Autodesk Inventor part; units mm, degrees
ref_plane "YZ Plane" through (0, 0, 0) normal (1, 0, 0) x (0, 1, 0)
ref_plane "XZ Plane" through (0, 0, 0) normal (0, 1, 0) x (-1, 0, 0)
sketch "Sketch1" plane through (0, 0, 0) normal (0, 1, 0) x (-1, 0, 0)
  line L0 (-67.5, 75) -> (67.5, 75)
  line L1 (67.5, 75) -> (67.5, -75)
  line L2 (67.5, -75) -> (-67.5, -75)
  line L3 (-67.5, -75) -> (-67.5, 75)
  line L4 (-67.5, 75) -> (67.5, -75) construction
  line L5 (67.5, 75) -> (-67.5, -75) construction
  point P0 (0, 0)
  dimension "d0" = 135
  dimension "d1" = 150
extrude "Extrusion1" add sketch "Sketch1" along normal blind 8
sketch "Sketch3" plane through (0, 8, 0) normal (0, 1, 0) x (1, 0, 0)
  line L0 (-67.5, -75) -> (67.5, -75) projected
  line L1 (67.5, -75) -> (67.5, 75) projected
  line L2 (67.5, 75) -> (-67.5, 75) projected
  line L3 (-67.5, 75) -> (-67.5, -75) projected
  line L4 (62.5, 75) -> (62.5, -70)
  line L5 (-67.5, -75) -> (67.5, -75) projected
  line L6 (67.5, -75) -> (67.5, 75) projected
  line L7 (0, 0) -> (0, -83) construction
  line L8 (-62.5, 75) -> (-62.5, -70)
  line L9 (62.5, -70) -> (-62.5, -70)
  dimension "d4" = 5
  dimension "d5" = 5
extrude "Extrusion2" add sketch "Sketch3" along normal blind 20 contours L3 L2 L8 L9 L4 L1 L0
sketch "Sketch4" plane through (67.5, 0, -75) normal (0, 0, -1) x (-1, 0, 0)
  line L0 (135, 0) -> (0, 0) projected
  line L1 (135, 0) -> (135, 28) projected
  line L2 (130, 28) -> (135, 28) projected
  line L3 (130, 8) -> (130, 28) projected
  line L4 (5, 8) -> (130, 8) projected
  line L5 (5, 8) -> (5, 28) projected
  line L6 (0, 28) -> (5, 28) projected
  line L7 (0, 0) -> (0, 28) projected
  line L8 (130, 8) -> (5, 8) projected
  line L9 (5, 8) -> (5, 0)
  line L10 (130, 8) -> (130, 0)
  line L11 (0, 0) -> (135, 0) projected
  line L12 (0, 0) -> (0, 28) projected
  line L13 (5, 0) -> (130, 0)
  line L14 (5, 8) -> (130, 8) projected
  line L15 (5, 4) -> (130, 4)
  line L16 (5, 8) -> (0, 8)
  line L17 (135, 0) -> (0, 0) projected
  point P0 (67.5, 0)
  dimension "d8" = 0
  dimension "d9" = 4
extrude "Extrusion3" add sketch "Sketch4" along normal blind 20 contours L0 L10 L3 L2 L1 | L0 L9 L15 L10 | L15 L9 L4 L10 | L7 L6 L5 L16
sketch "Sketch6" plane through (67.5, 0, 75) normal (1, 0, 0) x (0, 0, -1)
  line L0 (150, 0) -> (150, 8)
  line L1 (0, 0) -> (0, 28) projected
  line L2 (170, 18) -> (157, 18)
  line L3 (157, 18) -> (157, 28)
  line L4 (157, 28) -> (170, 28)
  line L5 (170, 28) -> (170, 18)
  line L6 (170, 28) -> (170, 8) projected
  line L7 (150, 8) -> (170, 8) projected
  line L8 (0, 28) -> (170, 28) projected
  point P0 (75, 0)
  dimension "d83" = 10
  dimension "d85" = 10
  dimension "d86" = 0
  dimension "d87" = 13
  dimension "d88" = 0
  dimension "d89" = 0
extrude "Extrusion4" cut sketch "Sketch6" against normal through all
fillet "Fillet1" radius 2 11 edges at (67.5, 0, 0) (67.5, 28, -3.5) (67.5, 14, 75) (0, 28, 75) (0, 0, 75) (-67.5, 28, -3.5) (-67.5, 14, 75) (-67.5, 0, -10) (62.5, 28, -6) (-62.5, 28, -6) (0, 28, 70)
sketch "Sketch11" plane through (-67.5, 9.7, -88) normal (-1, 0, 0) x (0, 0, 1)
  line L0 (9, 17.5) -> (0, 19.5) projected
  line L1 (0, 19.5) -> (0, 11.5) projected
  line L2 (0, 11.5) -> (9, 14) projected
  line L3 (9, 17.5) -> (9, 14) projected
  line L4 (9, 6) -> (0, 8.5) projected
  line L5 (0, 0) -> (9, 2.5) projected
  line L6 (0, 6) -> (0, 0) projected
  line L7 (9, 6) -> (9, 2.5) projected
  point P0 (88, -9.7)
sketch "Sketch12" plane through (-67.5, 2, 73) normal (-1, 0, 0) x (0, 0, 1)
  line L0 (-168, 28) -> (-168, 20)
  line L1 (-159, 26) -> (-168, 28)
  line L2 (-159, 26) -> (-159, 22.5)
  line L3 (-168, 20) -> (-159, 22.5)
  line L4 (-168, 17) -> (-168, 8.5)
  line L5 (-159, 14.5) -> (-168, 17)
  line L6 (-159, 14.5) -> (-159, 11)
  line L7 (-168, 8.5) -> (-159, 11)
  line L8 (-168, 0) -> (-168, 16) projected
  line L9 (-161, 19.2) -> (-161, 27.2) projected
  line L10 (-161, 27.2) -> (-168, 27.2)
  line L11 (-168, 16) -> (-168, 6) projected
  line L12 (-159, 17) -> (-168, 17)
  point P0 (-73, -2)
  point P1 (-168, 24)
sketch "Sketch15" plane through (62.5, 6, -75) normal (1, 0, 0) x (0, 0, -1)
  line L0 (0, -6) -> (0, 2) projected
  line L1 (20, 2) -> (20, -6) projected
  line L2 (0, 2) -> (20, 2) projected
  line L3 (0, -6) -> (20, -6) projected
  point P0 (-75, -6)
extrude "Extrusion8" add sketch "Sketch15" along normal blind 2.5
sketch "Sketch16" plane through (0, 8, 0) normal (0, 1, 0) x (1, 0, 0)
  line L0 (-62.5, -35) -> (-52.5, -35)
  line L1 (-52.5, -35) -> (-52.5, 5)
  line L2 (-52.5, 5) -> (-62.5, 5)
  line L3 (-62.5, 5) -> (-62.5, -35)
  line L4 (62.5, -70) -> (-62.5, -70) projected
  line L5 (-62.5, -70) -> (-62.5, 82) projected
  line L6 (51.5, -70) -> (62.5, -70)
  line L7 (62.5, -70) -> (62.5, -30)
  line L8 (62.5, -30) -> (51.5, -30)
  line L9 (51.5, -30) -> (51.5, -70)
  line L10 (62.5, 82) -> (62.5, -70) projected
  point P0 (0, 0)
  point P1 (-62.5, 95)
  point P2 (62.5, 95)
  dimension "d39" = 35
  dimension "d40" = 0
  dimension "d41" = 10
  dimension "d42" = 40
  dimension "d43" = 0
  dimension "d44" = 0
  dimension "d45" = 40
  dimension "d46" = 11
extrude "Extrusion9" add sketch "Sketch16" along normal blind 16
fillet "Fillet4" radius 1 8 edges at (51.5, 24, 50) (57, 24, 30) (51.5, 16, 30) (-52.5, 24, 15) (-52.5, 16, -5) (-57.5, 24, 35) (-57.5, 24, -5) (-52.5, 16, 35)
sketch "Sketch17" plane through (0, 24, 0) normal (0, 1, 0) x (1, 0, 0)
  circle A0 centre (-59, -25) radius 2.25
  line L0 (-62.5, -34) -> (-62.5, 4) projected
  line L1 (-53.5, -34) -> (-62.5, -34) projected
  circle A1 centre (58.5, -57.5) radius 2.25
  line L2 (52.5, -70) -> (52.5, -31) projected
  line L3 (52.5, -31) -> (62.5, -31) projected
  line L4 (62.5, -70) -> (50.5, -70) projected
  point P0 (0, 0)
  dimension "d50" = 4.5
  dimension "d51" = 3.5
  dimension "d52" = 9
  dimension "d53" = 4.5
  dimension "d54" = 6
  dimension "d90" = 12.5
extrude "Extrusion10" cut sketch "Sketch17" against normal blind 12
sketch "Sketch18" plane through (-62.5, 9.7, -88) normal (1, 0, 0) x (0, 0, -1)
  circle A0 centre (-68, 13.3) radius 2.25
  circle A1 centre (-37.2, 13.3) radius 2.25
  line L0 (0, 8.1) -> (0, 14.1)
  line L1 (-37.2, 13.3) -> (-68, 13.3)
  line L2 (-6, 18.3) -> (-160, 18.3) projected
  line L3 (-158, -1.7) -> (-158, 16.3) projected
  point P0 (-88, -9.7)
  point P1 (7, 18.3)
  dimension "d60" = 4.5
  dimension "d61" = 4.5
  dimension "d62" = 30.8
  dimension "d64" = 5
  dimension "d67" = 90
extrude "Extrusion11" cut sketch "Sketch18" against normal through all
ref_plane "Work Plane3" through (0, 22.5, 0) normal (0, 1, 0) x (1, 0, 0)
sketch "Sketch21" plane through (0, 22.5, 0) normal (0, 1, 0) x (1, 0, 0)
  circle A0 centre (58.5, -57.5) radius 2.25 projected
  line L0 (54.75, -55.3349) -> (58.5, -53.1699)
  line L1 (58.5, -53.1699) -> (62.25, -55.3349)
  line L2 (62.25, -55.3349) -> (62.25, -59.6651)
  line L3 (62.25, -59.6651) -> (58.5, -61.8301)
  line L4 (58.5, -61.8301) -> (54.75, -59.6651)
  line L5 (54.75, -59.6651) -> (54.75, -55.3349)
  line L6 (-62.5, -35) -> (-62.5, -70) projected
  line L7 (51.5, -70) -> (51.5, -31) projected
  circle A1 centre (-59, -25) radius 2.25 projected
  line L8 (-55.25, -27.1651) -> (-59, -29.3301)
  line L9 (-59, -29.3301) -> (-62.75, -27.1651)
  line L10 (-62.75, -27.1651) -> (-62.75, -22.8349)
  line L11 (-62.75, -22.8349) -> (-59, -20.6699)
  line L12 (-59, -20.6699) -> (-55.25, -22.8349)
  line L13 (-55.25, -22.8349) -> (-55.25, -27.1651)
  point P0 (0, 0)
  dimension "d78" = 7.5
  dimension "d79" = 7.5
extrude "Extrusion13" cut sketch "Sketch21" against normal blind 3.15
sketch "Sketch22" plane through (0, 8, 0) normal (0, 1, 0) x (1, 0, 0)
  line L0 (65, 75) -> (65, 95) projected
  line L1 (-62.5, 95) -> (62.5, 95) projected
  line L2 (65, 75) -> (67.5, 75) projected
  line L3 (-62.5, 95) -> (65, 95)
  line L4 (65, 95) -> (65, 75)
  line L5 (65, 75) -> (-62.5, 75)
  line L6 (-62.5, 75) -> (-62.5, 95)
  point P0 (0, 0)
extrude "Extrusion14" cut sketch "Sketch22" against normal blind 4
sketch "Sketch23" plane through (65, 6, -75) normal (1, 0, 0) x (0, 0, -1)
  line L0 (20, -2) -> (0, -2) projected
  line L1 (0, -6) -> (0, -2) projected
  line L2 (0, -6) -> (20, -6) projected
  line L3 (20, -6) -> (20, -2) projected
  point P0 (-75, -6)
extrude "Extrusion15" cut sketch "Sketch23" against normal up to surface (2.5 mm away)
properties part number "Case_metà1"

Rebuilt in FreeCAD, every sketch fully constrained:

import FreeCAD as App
import Part
import Sketcher
Q = App.Units.Quantity


def edges_at(feature, points):
    """Names of the edges that pass closest to the given points."""
    edges = feature.Shape.Edges
    near = lambda p: min(range(len(edges)), key=lambda i: edges[i].distToShape(Part.Vertex(*p))[0])
    return sorted({f"Edge{near(p) + 1}" for p in points})


def add_polygon(sketch, points):
    """Adds a closed chain of lines whose ends are joined by coincident constraints."""
    first, n = sketch.GeometryCount, len(points)
    for a, b in zip(points, points[1:] + points[:1]):
        sketch.addGeometry(Part.LineSegment(App.Vector(*a, 0), App.Vector(*b, 0)), False)
    for i in range(n):
        sketch.addConstraint(Sketcher.Constraint("Coincident", first + i, 2, first + (i + 1) % n, 1))

doc = App.newDocument("Part")
body = doc.addObject("PartDesign::Body", "Body")

sketch1 = body.newObject("Sketcher::SketchObject", "Sketch")
sketch1.AttachmentSupport = (doc.getObject("XZ_Plane"), [""])
sketch1.MapMode = "FlatFace"
add_polygon(sketch1, [(-68, 75), (68, 75), (68, -75), (-68, -75)])
sketch1.addConstraint(Sketcher.Constraint("Horizontal", 0))
sketch1.addConstraint(Sketcher.Constraint("Vertical", 1))
sketch1.addConstraint(Sketcher.Constraint("Horizontal", 2))
sketch1.addConstraint(Sketcher.Constraint("Vertical", 3))
sketch1.addConstraint(Sketcher.Constraint("Symmetric", 0, 2, 2, 2, -1, 1))
sketch1.addConstraint(Sketcher.Constraint("DistanceX", 0, 1, 0, 2, 135.0))
sketch1.addConstraint(Sketcher.Constraint("DistanceY", 1, 2, 1, 1, 150.0))
pad1 = body.newObject("PartDesign::Pad", "Pad")
pad1.Profile = sketch1
pad1.Length = 8
pad1.Reversed = True

sketch2 = body.newObject("Sketcher::SketchObject", "Sketch001")
sketch2.AttachmentSupport = (doc.getObject("XZ_Plane"), [""])
sketch2.MapMode = "FlatFace"
sketch2.AttachmentOffset = App.Placement(App.Vector(0, 0, -8), App.Rotation())
add_polygon(sketch2, [(-68, -75), (-68, 75), (68, 75), (68, -75), (62, -75), (62, 70), (-62, 70), (-62, -75)])
sketch2.addConstraint(Sketcher.Constraint("Vertical", 0))
sketch2.addConstraint(Sketcher.Constraint("Horizontal", 1))
sketch2.addConstraint(Sketcher.Constraint("Vertical", 2))
sketch2.addConstraint(Sketcher.Constraint("Horizontal", 3))
sketch2.addConstraint(Sketcher.Constraint("Vertical", 4))
sketch2.addConstraint(Sketcher.Constraint("Horizontal", 5))
sketch2.addConstraint(Sketcher.Constraint("Vertical", 6))
sketch2.addConstraint(Sketcher.Constraint("Horizontal", 7))
sketch2.addConstraint(Sketcher.Constraint("Symmetric", 0, 2, 2, 2, -1, 1))
sketch2.addConstraint(Sketcher.Constraint("Symmetric", 3, 2, 6, 2, -2))
sketch2.addConstraint(Sketcher.Constraint("DistanceX", 3, 2, 3, 1, 5.0))
sketch2.addConstraint(Sketcher.Constraint("DistanceY", 4, 2, 1, 2, 5.0))
sketch2.addConstraint(Sketcher.Constraint("DistanceX", 1, 1, 1, 2, 135.0))
sketch2.addConstraint(Sketcher.Constraint("DistanceY", 0, 1, 0, 2, 150.0))
pad2 = body.newObject("PartDesign::Pad", "Pad001")
pad2.Profile = sketch2
pad2.Length = 20
pad2.Reversed = True

sketch3 = body.newObject("Sketcher::SketchObject", "Sketch002")
sketch3.AttachmentSupport = (doc.getObject("XY_Plane"), [""])
sketch3.MapMode = "FlatFace"
sketch3.AttachmentOffset = App.Placement(App.Vector(0, 0, -75), App.Rotation())
add_polygon(sketch3, [(-68, 0), (-68, 28), (-62, 28), (-62, 8), (62, 8), (62, 0)])
add_polygon(sketch3, [(68, 28), (68, 8), (62, 8), (62, 28)])
sketch3.addConstraint(Sketcher.Constraint("Vertical", 0))
sketch3.addConstraint(Sketcher.Constraint("Horizontal", 1))
sketch3.addConstraint(Sketcher.Constraint("Vertical", 2))
sketch3.addConstraint(Sketcher.Constraint("Horizontal", 3))
sketch3.addConstraint(Sketcher.Constraint("Vertical", 4))
sketch3.addConstraint(Sketcher.Constraint("Horizontal", 5))
sketch3.addConstraint(Sketcher.Constraint("Vertical", 6))
sketch3.addConstraint(Sketcher.Constraint("Horizontal", 7))
sketch3.addConstraint(Sketcher.Constraint("Vertical", 8))
sketch3.addConstraint(Sketcher.Constraint("Horizontal", 9))
sketch3.addConstraint(Sketcher.Constraint("Coincident", 7, 2, 3, 2))
sketch3.addConstraint(Sketcher.Constraint("Symmetric", 1, 2, 8, 2, -2))
sketch3.addConstraint(Sketcher.Constraint("PointOnObject", 4, 2, -1))
sketch3.addConstraint(Sketcher.Constraint("Equal", 1, 7))
sketch3.addConstraint(Sketcher.Constraint("DistanceX", 1, 1, 1, 2, 5.0))
sketch3.addConstraint(Sketcher.Constraint("DistanceX", 3, 1, 3, 2, 125.0))
sketch3.addConstraint(Sketcher.Constraint("DistanceY", 0, 1, 0, 2, 28.0))
sketch3.addConstraint(Sketcher.Constraint("DistanceY", 2, 2, 2, 1, 20.0))
pad3 = body.newObject("PartDesign::Pad", "Pad002")
pad3.Profile = sketch3
pad3.Length = 20
pad3.Reversed = True

sketch4 = body.newObject("Sketcher::SketchObject", "Sketch003")
sketch4.AttachmentSupport = (doc.getObject("YZ_Plane"), [""])
sketch4.MapMode = "FlatFace"
sketch4.AttachmentOffset = App.Placement(App.Vector(0, 0, 67.5), App.Rotation())
add_polygon(sketch4, [(18, -82), (18, -95), (28, -95), (28, -82)])
sketch4.addConstraint(Sketcher.Constraint("Vertical", 0))
sketch4.addConstraint(Sketcher.Constraint("Horizontal", 1))
sketch4.addConstraint(Sketcher.Constraint("Vertical", 2))
sketch4.addConstraint(Sketcher.Constraint("Horizontal", 3))
sketch4.addConstraint(Sketcher.Constraint("DistanceX", 1, 1, 1, 2, 10.0))
sketch4.addConstraint(Sketcher.Constraint("DistanceY", 0, 2, 0, 1, 13.0))
sketch4.addConstraint(Sketcher.Constraint("DistanceX", -1, 1, 0, 2, 18.0))
sketch4.addConstraint(Sketcher.Constraint("DistanceY", 0, 2, -1, 1, 95.0))
pocket1 = body.newObject("PartDesign::Pocket", "Pocket")
pocket1.Profile = sketch4
pocket1.Type = "ThroughAll"
doc.recompute()

fillet = body.newObject("PartDesign::Fillet", "Fillet")
fillet.Base = (pocket1, edges_at(pocket1, [
    (67.5, 0, 0),
    (67.5, 28, -3.5),
    (67.5, 14, 75),
    (0, 28, 75),
    (0, 0, 75),
    (-67.5, 28, -3.5),
    (-67.5, 14, 75),
    (-67.5, 0, -10),
    (62.5, 28, -6),
    (-62.5, 28, -6),
    (0, 28, 70),
]))
fillet.Radius = 2

sketch5 = body.newObject("Sketcher::SketchObject", "Sketch004")
sketch5.AttachmentSupport = (doc.getObject("YZ_Plane"), [""])
sketch5.MapMode = "FlatFace"
sketch5.AttachmentOffset = App.Placement(App.Vector(0, 0, 62.5), App.Rotation())
add_polygon(sketch5, [(8, -75), (0, -75), (0, -95), (8, -95)])
sketch5.addConstraint(Sketcher.Constraint("Horizontal", 0))
sketch5.addConstraint(Sketcher.Constraint("Vertical", 1))
sketch5.addConstraint(Sketcher.Constraint("Horizontal", 2))
sketch5.addConstraint(Sketcher.Constraint("Vertical", 3))
sketch5.addConstraint(Sketcher.Constraint("PointOnObject", 0, 2, -2))
sketch5.addConstraint(Sketcher.Constraint("DistanceX", 0, 2, 0, 1, 8.0))
sketch5.addConstraint(Sketcher.Constraint("DistanceY", 1, 2, 1, 1, 20.0))
sketch5.addConstraint(Sketcher.Constraint("DistanceY", 0, 2, -1, 1, 75.0))
pad4 = body.newObject("PartDesign::Pad", "Pad003")
pad4.Profile = sketch5
pad4.Length = 2.5

sketch6 = body.newObject("Sketcher::SketchObject", "Sketch005")
sketch6.AttachmentSupport = (doc.getObject("XZ_Plane"), [""])
sketch6.MapMode = "FlatFace"
sketch6.AttachmentOffset = App.Placement(App.Vector(0, 0, -8), App.Rotation())
add_polygon(sketch6, [(-62, -5), (-62, 35), (-52, 35), (-52, -5)])
add_polygon(sketch6, [(52, 30), (52, 70), (62, 70), (62, 30)])
sketch6.addConstraint(Sketcher.Constraint("Vertical", 0))
sketch6.addConstraint(Sketcher.Constraint("Horizontal", 1))
sketch6.addConstraint(Sketcher.Constraint("Vertical", 2))
sketch6.addConstraint(Sketcher.Constraint("Horizontal", 3))
sketch6.addConstraint(Sketcher.Constraint("Vertical", 4))
sketch6.addConstraint(Sketcher.Constraint("Horizontal", 5))
sketch6.addConstraint(Sketcher.Constraint("Vertical", 6))
sketch6.addConstraint(Sketcher.Constraint("Horizontal", 7))
sketch6.addConstraint(Sketcher.Constraint("Equal", 2, 4))
sketch6.addConstraint(Sketcher.Constraint("DistanceX", 1, 1, 1, 2, 10.0))
sketch6.addConstraint(Sketcher.Constraint("DistanceX", 5, 1, 5, 2, 11.0))
sketch6.addConstraint(Sketcher.Constraint("DistanceY", 0, 1, 0, 2, 40.0))
sketch6.addConstraint(Sketcher.Constraint("DistanceY", -1, 1, 0, 2, 35.0))
sketch6.addConstraint(Sketcher.Constraint("DistanceY", 1, 2, 4, 2, 35.0))
sketch6.addConstraint(Sketcher.Constraint("DistanceX", 1, 2, 4, 2, 104.0))
sketch6.addConstraint(Sketcher.Constraint("DistanceX", 0, 2, -1, 1, 62.5))
pad5 = body.newObject("PartDesign::Pad", "Pad004")
pad5.Profile = sketch6
pad5.Length = 16
pad5.Reversed = True
doc.recompute()

fillet2 = body.newObject("PartDesign::Fillet", "Fillet001")
fillet2.Base = (pad5, edges_at(pad5, [
    (51.5, 24, 50),
    (57, 24, 30),
    (51.5, 16, 30),
    (-52.5, 24, 15),
    (-52.5, 16, -5),
    (-57.5, 24, 35),
    (-57.5, 24, -5),
    (-52.5, 16, 35),
]))
fillet2.Radius = 1

sketch7 = body.newObject("Sketcher::SketchObject", "Sketch006")
sketch7.AttachmentSupport = (doc.getObject("XZ_Plane"), [""])
sketch7.MapMode = "FlatFace"
sketch7.AttachmentOffset = App.Placement(App.Vector(0, 0, -24), App.Rotation())
sketch7.addGeometry(Part.Circle(App.Vector(-59, 25, 0), App.Vector(0, 0, 1), 2.2), False)
sketch7.addGeometry(Part.Circle(App.Vector(58.5, 57.5, 0), App.Vector(0, 0, 1), 2.2), False)
sketch7.addConstraint(Sketcher.Constraint("Equal", 0, 1))
sketch7.addConstraint(Sketcher.Constraint("Diameter", 0, 4.5))
sketch7.addConstraint(Sketcher.Constraint("DistanceX", 0, 3, -1, 1, 59.0))
sketch7.addConstraint(Sketcher.Constraint("DistanceY", -1, 1, 0, 3, 25.0))
sketch7.addConstraint(Sketcher.Constraint("DistanceX", -1, 1, 1, 3, 58.5))
sketch7.addConstraint(Sketcher.Constraint("DistanceY", -1, 1, 1, 3, 57.5))
pocket2 = body.newObject("PartDesign::Pocket", "Pocket001")
pocket2.Profile = sketch7
pocket2.Length = 12
pocket2.Reversed = True

sketch8 = body.newObject("Sketcher::SketchObject", "Sketch007")
sketch8.AttachmentSupport = (doc.getObject("YZ_Plane"), [""])
sketch8.MapMode = "FlatFace"
sketch8.AttachmentOffset = App.Placement(App.Vector(0, 0, -62.5), App.Rotation())
sketch8.addGeometry(Part.Circle(App.Vector(23, -20, 0), App.Vector(0, 0, 1), 2.2), False)
sketch8.addGeometry(Part.Circle(App.Vector(23, -50.8, 0), App.Vector(0, 0, 1), 2.2), False)
sketch8.addConstraint(Sketcher.Constraint("Equal", 0, 1))
sketch8.addConstraint(Sketcher.Constraint("Vertical", 0, 3, 1, 3))
sketch8.addConstraint(Sketcher.Constraint("Diameter", 0, 4.5))
sketch8.addConstraint(Sketcher.Constraint("DistanceY", 1, 3, 0, 3, 30.8))
sketch8.addConstraint(Sketcher.Constraint("DistanceX", -1, 1, 0, 3, 23.0))
sketch8.addConstraint(Sketcher.Constraint("DistanceY", 0, 3, -1, 1, 20.0))
pocket3 = body.newObject("PartDesign::Pocket", "Pocket002")
pocket3.Profile = sketch8
pocket3.Type = "ThroughAll"

sketch9 = body.newObject("Sketcher::SketchObject", "Sketch008")
sketch9.AttachmentSupport = (doc.getObject("XZ_Plane"), [""])
sketch9.MapMode = "FlatFace"
sketch9.AttachmentOffset = App.Placement(App.Vector(0, 0, -22.5), App.Rotation())
add_polygon(sketch9, [(58.5, 53.2), (54.8, 55.3), (54.8, 59.7), (58.5, 61.8), (62.2, 59.7), (62.2, 55.3)])
sketch9.addGeometry(Part.Circle(App.Vector(58.5, 57.5, 0), App.Vector(0, 0, 1), 2.2), False)
add_polygon(sketch9, [(-59, 29.3), (-55.2, 27.2), (-55.2, 22.8), (-59, 20.7), (-62.8, 22.8), (-62.8, 27.2)])
sketch9.addGeometry(Part.Circle(App.Vector(-59, 25, 0), App.Vector(0, 0, 1), 2.2), False)
sketch9.addConstraint(Sketcher.Constraint("Vertical", 1))
sketch9.addConstraint(Sketcher.Constraint("Vertical", 4))
sketch9.addConstraint(Sketcher.Constraint("Vertical", 8))
sketch9.addConstraint(Sketcher.Constraint("Vertical", 11))
sketch9.addConstraint(Sketcher.Constraint("Equal", 6, 13))
sketch9.addConstraint(Sketcher.Constraint("Parallel", 0, 3))
sketch9.addConstraint(Sketcher.Constraint("Parallel", 2, 5))
sketch9.addConstraint(Sketcher.Constraint("Parallel", 3, 7))
sketch9.addConstraint(Sketcher.Constraint("Parallel", 5, 9))
sketch9.addConstraint(Sketcher.Constraint("Parallel", 7, 10))
sketch9.addConstraint(Sketcher.Constraint("Parallel", 9, 12))
sketch9.addConstraint(Sketcher.Constraint("Horizontal", 1, 2, 3, 2))
sketch9.addConstraint(Sketcher.Constraint("Horizontal", 0, 2, 4, 2))
sketch9.addConstraint(Sketcher.Constraint("Horizontal", 8, 2, 10, 2))
sketch9.addConstraint(Sketcher.Constraint("Horizontal", 7, 2, 11, 2))
sketch9.addConstraint(Sketcher.Constraint("Vertical", 6, 3, 2, 2))
sketch9.addConstraint(Sketcher.Constraint("Vertical", 2, 2, 5, 2))
sketch9.addConstraint(Sketcher.Constraint("Vertical", 13, 3, 9, 2))
sketch9.addConstraint(Sketcher.Constraint("Equal", 4, 8))
sketch9.addConstraint(Sketcher.Constraint("Equal", 5, 7))
sketch9.addConstraint(Sketcher.Constraint("Diameter", 6, 4.5))
sketch9.addConstraint(Sketcher.Constraint("DistanceX", 1, 2, 3, 2, 7.5))
sketch9.addConstraint(Sketcher.Constraint("Angle", 0, Q("150.0007 deg")))
sketch9.addConstraint(Sketcher.Constraint("DistanceX", 13, 3, -1, 1, 59.0))
sketch9.addConstraint(Sketcher.Constraint("DistanceY", -1, 1, 13, 3, 25.0))
sketch9.addConstraint(Sketcher.Constraint("DistanceX", 7, 2, 0, 2, 110.0))
sketch9.addConstraint(Sketcher.Constraint("DistanceY", -1, 1, 6, 3, 57.5))
sketch9.addConstraint(Sketcher.Constraint("DistanceY", 7, 2, 1, 2, 32.5))
sketch9.addConstraint(Sketcher.Constraint("DistanceY", -1, 1, 2, 2, 61.83))
sketch9.addConstraint(Sketcher.Constraint("DistanceY", -1, 1, 5, 2, 53.17))
pocket4 = body.newObject("PartDesign::Pocket", "Pocket003")
pocket4.Profile = sketch9
pocket4.Length = 3.15
pocket4.Reversed = True

sketch10 = body.newObject("Sketcher::SketchObject", "Sketch009")
sketch10.AttachmentSupport = (doc.getObject("XZ_Plane"), [""])
sketch10.MapMode = "FlatFace"
sketch10.AttachmentOffset = App.Placement(App.Vector(0, 0, -8), App.Rotation())
add_polygon(sketch10, [(-62, -75), (65, -75), (65, -95), (-62, -95)])
sketch10.addConstraint(Sketcher.Constraint("Horizontal", 0))
sketch10.addConstraint(Sketcher.Constraint("Vertical", 1))
sketch10.addConstraint(Sketcher.Constraint("Horizontal", 2))
sketch10.addConstraint(Sketcher.Constraint("Vertical", 3))
sketch10.addConstraint(Sketcher.Constraint("DistanceY", 1, 2, 1, 1, 20.0))
sketch10.addConstraint(Sketcher.Constraint("DistanceX", 0, 1, 0, 2, 127.5))
sketch10.addConstraint(Sketcher.Constraint("DistanceX", -1, 1, 0, 2, 65.0))
sketch10.addConstraint(Sketcher.Constraint("DistanceY", 0, 2, -1, 1, 75.0))
pocket5 = body.newObject("PartDesign::Pocket", "Pocket004")
pocket5.Profile = sketch10
pocket5.Length = 4
pocket5.Reversed = True

sketch11 = body.newObject("Sketcher::SketchObject", "Sketch010")
sketch11.AttachmentSupport = (doc.getObject("YZ_Plane"), [""])
sketch11.MapMode = "FlatFace"
sketch11.AttachmentOffset = App.Placement(App.Vector(0, 0, 65), App.Rotation())
add_polygon(sketch11, [(0, -95), (4, -95), (4, -75), (0, -75)])
sketch11.addConstraint(Sketcher.Constraint("Horizontal", 0))
sketch11.addConstraint(Sketcher.Constraint("Vertical", 1))
sketch11.addConstraint(Sketcher.Constraint("Horizontal", 2))
sketch11.addConstraint(Sketcher.Constraint("Vertical", 3))
sketch11.addConstraint(Sketcher.Constraint("PointOnObject", 2, 2, -2))
sketch11.addConstraint(Sketcher.Constraint("DistanceX", 0, 1, 0, 2, 4.0))
sketch11.addConstraint(Sketcher.Constraint("DistanceY", 1, 1, 1, 2, 20.0))
sketch11.addConstraint(Sketcher.Constraint("DistanceY", 0, 2, -1, 1, 95.0))
pocket6 = body.newObject("PartDesign::Pocket", "Pocket005")
pocket6.Profile = sketch11
pocket6.Length = 2.5

doc.recompute()
